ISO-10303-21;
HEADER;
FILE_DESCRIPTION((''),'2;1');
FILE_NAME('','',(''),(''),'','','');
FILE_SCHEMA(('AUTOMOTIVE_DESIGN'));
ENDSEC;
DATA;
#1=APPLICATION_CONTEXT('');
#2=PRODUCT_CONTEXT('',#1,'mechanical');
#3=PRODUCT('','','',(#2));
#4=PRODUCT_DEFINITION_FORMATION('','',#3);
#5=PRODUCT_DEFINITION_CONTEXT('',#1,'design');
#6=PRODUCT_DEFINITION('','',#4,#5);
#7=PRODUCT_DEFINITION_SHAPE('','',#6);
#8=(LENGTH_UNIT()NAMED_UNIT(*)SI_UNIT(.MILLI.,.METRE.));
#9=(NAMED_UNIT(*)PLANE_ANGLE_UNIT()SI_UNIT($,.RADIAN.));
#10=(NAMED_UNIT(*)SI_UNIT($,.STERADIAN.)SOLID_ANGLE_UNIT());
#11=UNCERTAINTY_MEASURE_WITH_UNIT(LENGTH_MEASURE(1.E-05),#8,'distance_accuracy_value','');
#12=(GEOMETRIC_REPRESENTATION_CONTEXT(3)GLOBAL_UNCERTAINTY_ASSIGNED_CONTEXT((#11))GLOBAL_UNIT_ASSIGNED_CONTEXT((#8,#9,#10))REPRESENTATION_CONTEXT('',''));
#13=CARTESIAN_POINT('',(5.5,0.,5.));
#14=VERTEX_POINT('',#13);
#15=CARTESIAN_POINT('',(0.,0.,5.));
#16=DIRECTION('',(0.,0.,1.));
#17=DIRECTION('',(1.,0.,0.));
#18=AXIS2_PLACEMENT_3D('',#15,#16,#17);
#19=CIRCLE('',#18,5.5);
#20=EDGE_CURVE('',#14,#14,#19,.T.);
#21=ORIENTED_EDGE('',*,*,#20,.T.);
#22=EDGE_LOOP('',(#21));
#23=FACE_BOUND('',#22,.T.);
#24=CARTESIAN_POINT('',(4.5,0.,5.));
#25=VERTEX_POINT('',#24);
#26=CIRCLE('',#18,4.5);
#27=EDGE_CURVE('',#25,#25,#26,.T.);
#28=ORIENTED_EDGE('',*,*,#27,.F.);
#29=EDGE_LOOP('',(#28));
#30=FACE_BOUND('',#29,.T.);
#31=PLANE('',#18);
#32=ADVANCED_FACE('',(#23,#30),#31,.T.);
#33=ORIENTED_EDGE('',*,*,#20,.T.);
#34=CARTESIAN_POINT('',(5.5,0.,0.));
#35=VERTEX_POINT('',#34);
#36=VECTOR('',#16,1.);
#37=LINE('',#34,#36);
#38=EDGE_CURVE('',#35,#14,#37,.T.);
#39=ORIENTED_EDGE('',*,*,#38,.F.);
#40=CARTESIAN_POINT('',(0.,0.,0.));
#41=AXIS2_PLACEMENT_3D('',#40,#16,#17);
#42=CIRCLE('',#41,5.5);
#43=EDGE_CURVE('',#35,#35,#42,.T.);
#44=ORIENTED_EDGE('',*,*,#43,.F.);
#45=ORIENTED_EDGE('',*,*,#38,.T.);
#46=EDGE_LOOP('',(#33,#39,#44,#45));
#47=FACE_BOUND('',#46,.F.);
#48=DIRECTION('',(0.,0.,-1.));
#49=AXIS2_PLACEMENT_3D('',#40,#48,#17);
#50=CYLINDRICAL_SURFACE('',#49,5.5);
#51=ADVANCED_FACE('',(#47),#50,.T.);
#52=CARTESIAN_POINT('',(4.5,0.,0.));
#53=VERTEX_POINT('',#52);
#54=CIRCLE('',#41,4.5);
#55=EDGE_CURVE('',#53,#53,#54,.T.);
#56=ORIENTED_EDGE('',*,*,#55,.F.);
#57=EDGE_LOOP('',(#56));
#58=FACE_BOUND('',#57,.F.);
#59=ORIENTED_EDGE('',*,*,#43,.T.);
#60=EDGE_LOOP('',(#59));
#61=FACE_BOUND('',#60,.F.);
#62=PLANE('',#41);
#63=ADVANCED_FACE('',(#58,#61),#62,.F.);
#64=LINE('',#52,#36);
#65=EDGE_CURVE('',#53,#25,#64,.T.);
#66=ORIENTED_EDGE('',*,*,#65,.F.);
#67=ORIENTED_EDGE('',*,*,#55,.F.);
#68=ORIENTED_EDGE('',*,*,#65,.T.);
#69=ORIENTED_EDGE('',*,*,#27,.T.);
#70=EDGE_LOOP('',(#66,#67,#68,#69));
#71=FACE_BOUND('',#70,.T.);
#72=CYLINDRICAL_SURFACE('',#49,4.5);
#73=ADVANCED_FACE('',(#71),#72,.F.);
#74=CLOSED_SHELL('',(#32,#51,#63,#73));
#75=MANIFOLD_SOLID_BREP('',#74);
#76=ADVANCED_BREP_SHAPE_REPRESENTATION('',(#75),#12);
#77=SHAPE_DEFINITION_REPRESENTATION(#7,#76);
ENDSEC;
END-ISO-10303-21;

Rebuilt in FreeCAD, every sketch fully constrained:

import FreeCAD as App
import Part
import Sketcher
from FreeCAD import Vector
Q = App.Units.Quantity

doc = App.newDocument("Part")
body = doc.addObject("PartDesign::Body", "Body")

# Sketch on XY plane
sketch1 = body.newObject("Sketcher::SketchObject", "Sketch")
sketch1.AttachmentSupport = (doc.getObject("XY_Plane"), [""])
sketch1.MapMode = "FlatFace"
sketch1.addGeometry([
    Part.Circle(Vector(0, 0, 0), Vector(0, 0, 1), 5.5),
    Part.Circle(Vector(0, 0, 0), Vector(0, 0, 1), 4.5),
], False)
sketch1.addConstraint([
    Sketcher.Constraint("Coincident", 0, 3, -1, 1),
    Sketcher.Constraint("Coincident", 1, 3, -1, 1),
    Sketcher.Constraint("Diameter", 0, Q("11 mm")),
    Sketcher.Constraint("Diameter", 1, Q("9 mm")),
])
pad1 = body.newObject("PartDesign::Pad", "Pad")
pad1.Profile = sketch1
pad1.Length = 5

doc.recompute()
